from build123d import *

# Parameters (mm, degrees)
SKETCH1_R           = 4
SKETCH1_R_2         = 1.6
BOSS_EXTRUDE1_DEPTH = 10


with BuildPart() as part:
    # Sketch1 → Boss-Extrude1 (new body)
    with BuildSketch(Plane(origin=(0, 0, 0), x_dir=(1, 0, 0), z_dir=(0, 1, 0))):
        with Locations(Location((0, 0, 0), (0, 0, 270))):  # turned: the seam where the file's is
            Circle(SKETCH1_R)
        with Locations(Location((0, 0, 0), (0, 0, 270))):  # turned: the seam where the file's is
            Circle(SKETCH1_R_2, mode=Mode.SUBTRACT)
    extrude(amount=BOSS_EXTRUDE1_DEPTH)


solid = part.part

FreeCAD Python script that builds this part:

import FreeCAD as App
import Part
import Sketcher
from FreeCAD import Vector
Q = App.Units.Quantity

doc = App.newDocument("Part")
body = doc.addObject("PartDesign::Body", "Body")

# Sketch on XZ plane
sketch1 = doc.addObject("Sketcher::SketchObject", "Sketch")
body.addObject(sketch1)
sketch1.AttachmentSupport = (doc.XZ_Plane, [""])
sketch1.MapMode = "FlatFace"
sketch1.addGeometry([
    Part.Circle(Vector(0, 0, 0), Vector(0, 0, 1), 4),
    Part.Circle(Vector(0, 0, 0), Vector(0, 0, 1), 1.6),
], False)
sketch1.addConstraint([
    Sketcher.Constraint("Coincident", 0, 3, -1, 1),
    Sketcher.Constraint("Coincident", 1, 3, -1, 1),
    Sketcher.Constraint("Diameter", 0, Q("8 mm")),
    Sketcher.Constraint("Diameter", 1, Q("3.2 mm")),
])
pad1 = doc.addObject("PartDesign::Pad", "Pad")
body.addObject(pad1)
pad1.Profile = sketch1
pad1.Length = 10
pad1.Reversed = True

doc.recompute()
